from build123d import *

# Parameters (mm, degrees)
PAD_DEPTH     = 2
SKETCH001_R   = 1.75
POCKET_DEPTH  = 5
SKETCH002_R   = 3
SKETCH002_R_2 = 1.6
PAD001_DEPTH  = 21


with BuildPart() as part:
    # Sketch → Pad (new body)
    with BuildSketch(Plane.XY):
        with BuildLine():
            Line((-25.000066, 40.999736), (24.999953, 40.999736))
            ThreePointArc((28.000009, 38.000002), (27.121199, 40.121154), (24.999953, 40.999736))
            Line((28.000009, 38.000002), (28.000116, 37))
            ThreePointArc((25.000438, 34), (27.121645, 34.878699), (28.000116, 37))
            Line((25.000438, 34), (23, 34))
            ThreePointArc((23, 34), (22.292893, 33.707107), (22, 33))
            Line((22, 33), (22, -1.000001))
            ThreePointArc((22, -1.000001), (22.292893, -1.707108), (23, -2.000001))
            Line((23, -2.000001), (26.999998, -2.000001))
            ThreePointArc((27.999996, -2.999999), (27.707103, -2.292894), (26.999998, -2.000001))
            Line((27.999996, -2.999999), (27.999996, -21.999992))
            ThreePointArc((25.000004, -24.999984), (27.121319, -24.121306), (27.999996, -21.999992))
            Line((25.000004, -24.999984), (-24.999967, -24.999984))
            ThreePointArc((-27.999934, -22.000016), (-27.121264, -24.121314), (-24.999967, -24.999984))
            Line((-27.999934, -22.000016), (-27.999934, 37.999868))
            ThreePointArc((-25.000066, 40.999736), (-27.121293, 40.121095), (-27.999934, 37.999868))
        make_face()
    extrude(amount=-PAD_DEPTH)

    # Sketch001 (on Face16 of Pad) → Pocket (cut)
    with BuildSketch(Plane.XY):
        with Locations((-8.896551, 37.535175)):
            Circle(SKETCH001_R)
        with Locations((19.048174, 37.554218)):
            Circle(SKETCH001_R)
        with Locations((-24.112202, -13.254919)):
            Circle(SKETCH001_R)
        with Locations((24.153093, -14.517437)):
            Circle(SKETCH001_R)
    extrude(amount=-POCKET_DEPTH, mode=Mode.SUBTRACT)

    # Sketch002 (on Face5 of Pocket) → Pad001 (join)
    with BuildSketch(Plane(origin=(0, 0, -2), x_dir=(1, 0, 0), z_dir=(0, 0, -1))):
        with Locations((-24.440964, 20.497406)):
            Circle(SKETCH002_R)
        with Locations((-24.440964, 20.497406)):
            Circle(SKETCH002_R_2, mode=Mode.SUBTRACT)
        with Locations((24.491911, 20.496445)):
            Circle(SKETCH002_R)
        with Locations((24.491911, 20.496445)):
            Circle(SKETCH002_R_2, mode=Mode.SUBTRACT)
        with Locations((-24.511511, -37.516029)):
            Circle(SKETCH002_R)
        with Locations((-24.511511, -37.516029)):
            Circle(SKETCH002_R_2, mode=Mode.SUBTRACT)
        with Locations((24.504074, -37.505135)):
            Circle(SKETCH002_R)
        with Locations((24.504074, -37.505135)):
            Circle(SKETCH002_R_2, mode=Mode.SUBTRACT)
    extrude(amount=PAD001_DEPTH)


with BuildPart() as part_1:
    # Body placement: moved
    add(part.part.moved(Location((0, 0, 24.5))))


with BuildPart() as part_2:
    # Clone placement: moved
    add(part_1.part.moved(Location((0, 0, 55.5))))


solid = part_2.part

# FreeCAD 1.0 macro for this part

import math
import FreeCAD as App
import Part
import Sketcher

V = App.Vector
Q = App.Units.Quantity

doc = App.newDocument("Part")
body = doc.addObject("PartDesign::Body", "Body")

sketch1 = body.newObject("Sketcher::SketchObject", "Sketch")
sketch1.AttachmentSupport = (doc.getObject("XY_Plane"), [""])
sketch1.MapMode = "FlatFace"
sketch1.addGeometry([
    Part.LineSegment(V(25, 41, 0), V(-25, 41, 0)),
    Part.ArcOfCircle(Part.Circle(V(-25, 38, 0), V(0, 0, 1), 3), math.radians(90), math.radians(180)),
    Part.LineSegment(V(-28, 38, 0), V(-28, -22, 0)),
    Part.ArcOfCircle(Part.Circle(V(-25, -22, 0), V(0, 0, 1), 3), math.radians(180), math.radians(270)),
    Part.LineSegment(V(-25, -25, 0), V(25, -25, 0)),
    Part.ArcOfCircle(Part.Circle(V(25, -22, 0), V(0, 0, 1), 3), math.radians(-90), math.radians(0)),
    Part.LineSegment(V(28, -22, 0), V(28, -3, 0)),
    Part.ArcOfCircle(Part.Circle(V(27, -3, 0), V(0, 0, 1), 1), math.radians(0), math.radians(90)),
    Part.LineSegment(V(27, -2, 0), V(23, -2, 0)),
    Part.ArcOfCircle(Part.Circle(V(23, -1, 0), V(0, 0, 1), 1), math.radians(180), math.radians(270)),
    Part.LineSegment(V(22, -1, 0), V(22, 33, 0)),
    Part.ArcOfCircle(Part.Circle(V(23, 33, 0), V(0, 0, 1), 1), math.radians(90), math.radians(180)),
    Part.LineSegment(V(23, 34, 0), V(25, 34, 0)),
    Part.ArcOfCircle(Part.Circle(V(25, 37, 0), V(0, 0, 1), 3), math.radians(-90), math.radians(0)),
    Part.LineSegment(V(28, 37, 0), V(28, 38, 0)),
    Part.ArcOfCircle(Part.Circle(V(25, 38, 0), V(0, 0, 1), 3), math.radians(0), math.radians(90)),
], False)
sketch1.addConstraint([
    Sketcher.Constraint("Tangent", 0, 2, 1, 1),
    Sketcher.Constraint("Tangent", 1, 2, 2, 1),
    Sketcher.Constraint("Tangent", 2, 2, 3, 1),
    Sketcher.Constraint("Tangent", 3, 2, 4, 1),
    Sketcher.Constraint("Tangent", 4, 2, 5, 1),
    Sketcher.Constraint("Tangent", 5, 2, 6, 1),
    Sketcher.Constraint("Tangent", 6, 2, 7, 1),
    Sketcher.Constraint("Tangent", 7, 2, 8, 1),
    Sketcher.Constraint("Tangent", 8, 2, 9, 2),
    Sketcher.Constraint("Tangent", 9, 1, 10, 1),
    Sketcher.Constraint("Tangent", 10, 2, 11, 2),
    Sketcher.Constraint("Tangent", 11, 1, 12, 1),
    Sketcher.Constraint("Tangent", 12, 2, 13, 1),
    Sketcher.Constraint("Tangent", 13, 2, 14, 1),
    Sketcher.Constraint("Tangent", 14, 2, 15, 1),
    Sketcher.Constraint("Tangent", 15, 2, 0, 1),
    Sketcher.Constraint("Horizontal", 0),
    Sketcher.Constraint("Vertical", 2),
    Sketcher.Constraint("Horizontal", 4),
    Sketcher.Constraint("Vertical", 6),
    Sketcher.Constraint("Horizontal", 8),
    Sketcher.Constraint("Vertical", 10),
    Sketcher.Constraint("Horizontal", 12),
    Sketcher.Constraint("Equal", 7, 9),
    Sketcher.Constraint("Equal", 9, 11),
    Sketcher.Constraint("Radius", 7, Q("0.999999 mm")),
    Sketcher.Constraint("DistanceX", 8, 2, 8, 1, Q("3.999998 mm")),
    Sketcher.Constraint("DistanceY", 10, 1, 10, 2, Q("34.000001 mm")),
    Sketcher.Constraint("DistanceY", 7, 3, -1, 1, Q("3 mm")),
    Sketcher.Constraint("DistanceX", -1, 1, 9, 3, Q("22.999999 mm")),
    Sketcher.Constraint("DistanceY", -1, 1, 13, 2, Q("37 mm")),
    Sketcher.Constraint("Radius", 1, Q("2.999868 mm")),
    Sketcher.Constraint("Radius", 3, Q("2.999967 mm")),
    Sketcher.Constraint("Radius", 5, Q("2.999993 mm")),
    Sketcher.Constraint("Radius", 13, Q("2.999677 mm")),
    Sketcher.Constraint("Radius", 15, Q("3.000056 mm")),
    Sketcher.Constraint("DistanceX", 0, 2, 0, 1, Q("50.000019 mm")),
    Sketcher.Constraint("DistanceX", 4, 1, 4, 2, Q("49.999971 mm")),
    Sketcher.Constraint("DistanceY", 2, 2, 2, 1, Q("59.999884 mm")),
    Sketcher.Constraint("DistanceY", 6, 1, 6, 2, Q("18.999993 mm")),
])
pad1 = body.newObject("PartDesign::Pad", "Pad")
pad1.Profile = sketch1
pad1.Length = 2
pad1.Reversed = True

sketch2 = body.newObject("Sketcher::SketchObject", "Sketch001")
sketch2.AttachmentSupport = (doc.getObject("XY_Plane"), [""])
sketch2.MapMode = "FlatFace"
sketch2.addGeometry([
    Part.Circle(V(-8.9, 37.5, 0), V(0, 0, 1), 1.8),
    Part.Circle(V(19, 37.6, 0), V(0, 0, 1), 1.8),
    Part.Circle(V(-24.1, -13.3, 0), V(0, 0, 1), 1.8),
    Part.Circle(V(24.2, -14.5, 0), V(0, 0, 1), 1.8),
], False)
sketch2.addConstraint([
    Sketcher.Constraint("Equal", 0, 1),
    Sketcher.Constraint("Equal", 1, 2),
    Sketcher.Constraint("Equal", 2, 3),
    Sketcher.Constraint("Diameter", 0, Q("3.5 mm")),
    Sketcher.Constraint("DistanceX", 2, 3, -1, 1, Q("24.112202 mm")),
    Sketcher.Constraint("DistanceX", 0, 3, -1, 1, Q("8.896551 mm")),
    Sketcher.Constraint("DistanceY", 2, 3, -1, 1, Q("13.254919 mm")),
    Sketcher.Constraint("DistanceX", 1, 3, 3, 3, Q("5.104919 mm")),
    Sketcher.Constraint("DistanceY", -1, 1, 0, 3, Q("37.535175 mm")),
    Sketcher.Constraint("DistanceX", -1, 1, 1, 3, Q("19.048174 mm")),
    Sketcher.Constraint("DistanceY", -1, 1, 1, 3, Q("37.554218 mm")),
    Sketcher.Constraint("DistanceY", 3, 3, -1, 1, Q("14.517437 mm")),
])
pocket1 = body.newObject("PartDesign::Pocket", "Pocket")
pocket1.Profile = sketch2
pocket1.Length = 5

sketch3 = body.newObject("Sketcher::SketchObject", "Sketch002")
sketch3.AttachmentSupport = (doc.getObject("XY_Plane"), [""])
sketch3.MapMode = "FlatFace"
sketch3.AttachmentOffset = App.Placement(V(0, 0, -2), App.Rotation())
sketch3.addGeometry([
    Part.Circle(V(-24.4, -20.5, 0), V(0, 0, 1), 3),
    Part.Circle(V(-24.4, -20.5, 0), V(0, 0, 1), 1.6),
    Part.Circle(V(24.5, -20.5, 0), V(0, 0, 1), 3),
    Part.Circle(V(24.5, -20.5, 0), V(0, 0, 1), 1.6),
    Part.Circle(V(-24.5, 37.5, 0), V(0, 0, 1), 3),
    Part.Circle(V(-24.5, 37.5, 0), V(0, 0, 1), 1.6),
    Part.Circle(V(24.5, 37.5, 0), V(0, 0, 1), 3),
    Part.Circle(V(24.5, 37.5, 0), V(0, 0, 1), 1.6),
], False)
sketch3.addConstraint([
    Sketcher.Constraint("Coincident", 1, 3, 0, 3),
    Sketcher.Constraint("Coincident", 3, 3, 2, 3),
    Sketcher.Constraint("Coincident", 5, 3, 4, 3),
    Sketcher.Constraint("Coincident", 7, 3, 6, 3),
    Sketcher.Constraint("Equal", 0, 2),
    Sketcher.Constraint("Equal", 1, 3),
    Sketcher.Constraint("Equal", 2, 4),
    Sketcher.Constraint("Equal", 3, 5),
    Sketcher.Constraint("Equal", 4, 6),
    Sketcher.Constraint("Equal", 5, 7),
    Sketcher.Constraint("Diameter", 0, Q("6 mm")),
    Sketcher.Constraint("Diameter", 1, Q("3.2 mm")),
    Sketcher.Constraint("DistanceX", -1, 1, 2, 3, Q("24.491911 mm")),
    Sketcher.Constraint("DistanceX", 4, 3, -1, 1, Q("24.511511 mm")),
    Sketcher.Constraint("DistanceY", -1, 1, 4, 3, Q("37.516029 mm")),
    Sketcher.Constraint("DistanceY", 0, 3, 2, 3, Q("0.000961 mm")),
    Sketcher.Constraint("DistanceY", 2, 3, 6, 3, Q("58.00158 mm")),
    Sketcher.Constraint("DistanceX", 0, 3, -1, 1, Q("24.440964 mm")),
    Sketcher.Constraint("DistanceY", 0, 3, -1, 1, Q("20.497406 mm")),
    Sketcher.Constraint("DistanceX", -1, 1, 6, 3, Q("24.504074 mm")),
])
pad2 = body.newObject("PartDesign::Pad", "Pad001")
pad2.Profile = sketch3
pad2.Length = 21
pad2.Reversed = True
body2 = doc.addObject("PartDesign::Body", "Body001")
doc.recompute()

body.Placement = App.Placement(V(0, 0, 24.5), App.Rotation(V(0, 0, 1), 0))
boolean = body2.newObject("PartDesign::Boolean", "Boolean")
boolean.Type = "Fuse"
boolean.addObjects([body])
body3 = doc.addObject("PartDesign::Body", "Body002")
doc.recompute()

body2.Placement = App.Placement(V(0, 0, 55.5), App.Rotation(V(0, 0, 1), 0))
boolean2 = body3.newObject("PartDesign::Boolean", "Boolean001")
boolean2.Type = "Fuse"
boolean2.addObjects([body2])

doc.recompute()
